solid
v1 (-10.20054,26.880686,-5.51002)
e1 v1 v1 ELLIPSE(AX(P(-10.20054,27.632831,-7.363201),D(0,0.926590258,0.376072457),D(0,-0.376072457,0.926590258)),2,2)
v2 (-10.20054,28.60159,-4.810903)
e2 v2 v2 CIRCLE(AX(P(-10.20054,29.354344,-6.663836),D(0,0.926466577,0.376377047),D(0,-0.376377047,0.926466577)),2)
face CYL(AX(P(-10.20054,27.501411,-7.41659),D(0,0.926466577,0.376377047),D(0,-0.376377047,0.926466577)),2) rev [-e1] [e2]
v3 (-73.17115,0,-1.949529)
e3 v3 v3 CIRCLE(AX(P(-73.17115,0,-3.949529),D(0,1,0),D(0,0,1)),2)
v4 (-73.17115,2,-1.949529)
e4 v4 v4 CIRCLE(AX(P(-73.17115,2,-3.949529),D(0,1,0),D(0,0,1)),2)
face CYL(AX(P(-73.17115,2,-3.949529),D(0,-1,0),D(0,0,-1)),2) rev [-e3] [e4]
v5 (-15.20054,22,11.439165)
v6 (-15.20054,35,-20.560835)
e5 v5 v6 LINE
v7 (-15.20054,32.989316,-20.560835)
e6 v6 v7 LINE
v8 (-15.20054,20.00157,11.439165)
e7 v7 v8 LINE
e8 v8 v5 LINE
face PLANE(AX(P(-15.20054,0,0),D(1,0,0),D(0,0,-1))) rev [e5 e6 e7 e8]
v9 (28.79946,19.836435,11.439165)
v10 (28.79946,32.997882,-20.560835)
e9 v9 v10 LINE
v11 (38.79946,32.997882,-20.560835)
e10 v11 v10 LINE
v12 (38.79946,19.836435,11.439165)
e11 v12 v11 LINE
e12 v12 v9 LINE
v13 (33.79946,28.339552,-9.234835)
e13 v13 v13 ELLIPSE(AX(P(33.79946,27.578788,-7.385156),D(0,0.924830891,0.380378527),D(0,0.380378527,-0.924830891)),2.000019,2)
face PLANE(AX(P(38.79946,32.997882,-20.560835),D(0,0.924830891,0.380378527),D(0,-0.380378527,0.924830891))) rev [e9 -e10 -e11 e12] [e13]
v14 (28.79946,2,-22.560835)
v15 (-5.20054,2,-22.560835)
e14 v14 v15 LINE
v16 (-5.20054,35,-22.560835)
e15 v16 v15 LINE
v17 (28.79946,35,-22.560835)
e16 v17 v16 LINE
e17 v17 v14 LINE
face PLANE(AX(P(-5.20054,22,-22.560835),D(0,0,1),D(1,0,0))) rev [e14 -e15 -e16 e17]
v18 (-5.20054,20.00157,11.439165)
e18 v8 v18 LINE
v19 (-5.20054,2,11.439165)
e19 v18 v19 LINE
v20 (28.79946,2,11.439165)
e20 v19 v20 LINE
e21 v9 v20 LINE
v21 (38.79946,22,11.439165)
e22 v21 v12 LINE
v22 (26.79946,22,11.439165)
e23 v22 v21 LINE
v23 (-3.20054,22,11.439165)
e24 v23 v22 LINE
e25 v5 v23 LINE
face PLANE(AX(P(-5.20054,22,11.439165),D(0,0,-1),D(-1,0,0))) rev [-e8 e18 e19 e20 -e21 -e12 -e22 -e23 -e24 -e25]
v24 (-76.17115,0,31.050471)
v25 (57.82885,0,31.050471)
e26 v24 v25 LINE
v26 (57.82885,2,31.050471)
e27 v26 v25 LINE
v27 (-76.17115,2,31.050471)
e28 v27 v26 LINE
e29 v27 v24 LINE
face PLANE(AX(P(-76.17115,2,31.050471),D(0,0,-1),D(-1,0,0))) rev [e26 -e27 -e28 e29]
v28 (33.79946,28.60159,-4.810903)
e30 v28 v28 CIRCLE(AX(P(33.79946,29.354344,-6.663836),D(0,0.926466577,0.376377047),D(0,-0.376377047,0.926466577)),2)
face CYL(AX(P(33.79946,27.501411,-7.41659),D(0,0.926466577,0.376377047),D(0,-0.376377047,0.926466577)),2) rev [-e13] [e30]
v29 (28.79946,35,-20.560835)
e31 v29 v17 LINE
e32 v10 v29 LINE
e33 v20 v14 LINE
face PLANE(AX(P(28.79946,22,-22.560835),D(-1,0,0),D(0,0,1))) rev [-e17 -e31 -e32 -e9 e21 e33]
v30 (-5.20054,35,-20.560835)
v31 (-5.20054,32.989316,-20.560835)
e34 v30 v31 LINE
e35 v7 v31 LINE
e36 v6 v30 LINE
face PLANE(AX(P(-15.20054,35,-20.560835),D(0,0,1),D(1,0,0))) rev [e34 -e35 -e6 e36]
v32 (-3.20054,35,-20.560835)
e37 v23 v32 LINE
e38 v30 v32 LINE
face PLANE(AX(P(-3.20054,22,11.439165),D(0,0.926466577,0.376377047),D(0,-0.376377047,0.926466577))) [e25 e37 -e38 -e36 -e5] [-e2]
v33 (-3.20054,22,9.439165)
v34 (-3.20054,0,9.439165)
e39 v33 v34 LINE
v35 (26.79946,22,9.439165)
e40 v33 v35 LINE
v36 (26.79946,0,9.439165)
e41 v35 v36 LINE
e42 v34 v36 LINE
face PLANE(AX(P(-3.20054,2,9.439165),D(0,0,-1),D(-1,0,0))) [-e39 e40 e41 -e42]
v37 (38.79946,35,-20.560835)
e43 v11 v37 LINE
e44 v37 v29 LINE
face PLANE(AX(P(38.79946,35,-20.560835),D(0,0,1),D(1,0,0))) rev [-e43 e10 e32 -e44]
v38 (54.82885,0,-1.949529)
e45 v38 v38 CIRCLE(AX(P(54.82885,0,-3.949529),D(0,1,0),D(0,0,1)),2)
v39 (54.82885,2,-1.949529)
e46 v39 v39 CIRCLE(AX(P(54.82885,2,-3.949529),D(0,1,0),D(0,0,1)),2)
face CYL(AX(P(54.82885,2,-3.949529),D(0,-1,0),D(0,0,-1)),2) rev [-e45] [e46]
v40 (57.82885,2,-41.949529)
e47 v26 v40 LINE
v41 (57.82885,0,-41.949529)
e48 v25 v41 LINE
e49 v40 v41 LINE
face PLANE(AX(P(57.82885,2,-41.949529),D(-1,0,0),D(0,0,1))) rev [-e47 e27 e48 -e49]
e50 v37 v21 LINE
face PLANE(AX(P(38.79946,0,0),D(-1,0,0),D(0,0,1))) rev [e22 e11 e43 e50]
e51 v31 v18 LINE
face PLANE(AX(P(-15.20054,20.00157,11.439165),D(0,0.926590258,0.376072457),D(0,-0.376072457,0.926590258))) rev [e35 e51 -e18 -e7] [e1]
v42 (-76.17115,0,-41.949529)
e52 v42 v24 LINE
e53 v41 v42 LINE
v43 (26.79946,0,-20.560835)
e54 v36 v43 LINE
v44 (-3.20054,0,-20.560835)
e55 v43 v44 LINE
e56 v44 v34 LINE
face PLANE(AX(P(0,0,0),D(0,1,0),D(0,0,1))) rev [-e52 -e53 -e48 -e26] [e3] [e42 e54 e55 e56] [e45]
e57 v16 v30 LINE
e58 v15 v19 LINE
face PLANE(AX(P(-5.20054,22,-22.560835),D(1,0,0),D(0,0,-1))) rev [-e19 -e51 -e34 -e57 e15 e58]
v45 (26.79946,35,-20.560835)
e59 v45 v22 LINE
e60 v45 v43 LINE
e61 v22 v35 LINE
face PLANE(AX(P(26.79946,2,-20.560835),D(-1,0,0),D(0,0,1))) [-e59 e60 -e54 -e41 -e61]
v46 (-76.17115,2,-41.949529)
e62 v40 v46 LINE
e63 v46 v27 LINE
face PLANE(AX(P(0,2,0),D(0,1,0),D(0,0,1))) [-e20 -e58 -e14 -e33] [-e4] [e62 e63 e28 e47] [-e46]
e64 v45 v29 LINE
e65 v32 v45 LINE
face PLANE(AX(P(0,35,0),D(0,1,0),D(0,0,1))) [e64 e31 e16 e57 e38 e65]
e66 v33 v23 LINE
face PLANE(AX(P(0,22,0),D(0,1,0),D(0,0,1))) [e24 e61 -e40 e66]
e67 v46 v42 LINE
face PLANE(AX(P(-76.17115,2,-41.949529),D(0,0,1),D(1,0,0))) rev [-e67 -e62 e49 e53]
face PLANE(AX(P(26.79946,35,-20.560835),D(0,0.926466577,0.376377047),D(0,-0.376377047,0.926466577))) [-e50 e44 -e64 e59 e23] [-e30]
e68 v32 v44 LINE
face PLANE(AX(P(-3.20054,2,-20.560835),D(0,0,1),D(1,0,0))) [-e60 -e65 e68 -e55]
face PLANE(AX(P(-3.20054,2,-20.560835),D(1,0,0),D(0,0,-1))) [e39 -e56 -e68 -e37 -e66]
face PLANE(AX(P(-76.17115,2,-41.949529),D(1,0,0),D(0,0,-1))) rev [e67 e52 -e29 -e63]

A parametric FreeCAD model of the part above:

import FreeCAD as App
import Part
import Sketcher
from FreeCAD import Vector


def add_polygon(sketch, points):
    """Adds a closed chain of lines whose ends are joined by coincident constraints."""
    first, n = sketch.GeometryCount, len(points)
    for a, b in zip(points, points[1:] + points[:1]):
        sketch.addGeometry(Part.LineSegment(App.Vector(*a, 0), App.Vector(*b, 0)), False)
    for i in range(n):
        sketch.addConstraint(Sketcher.Constraint("Coincident", first + i, 2, first + (i + 1) % n, 1))

doc = App.newDocument("Part")
body = doc.addObject("PartDesign::Body", "Body")

sketch1 = doc.addObject("Sketcher::SketchObject", "Sketch")
body.addObject(sketch1)
sketch1.AttachmentSupport = (doc.XZ_Plane, [""])
sketch1.MapMode = "FlatFace"
add_polygon(sketch1, [(-76.2, -41.9), (-76.2, 31.1), (57.8, 31.1), (57.8, -41.9)])
sketch1.addGeometry(Part.Circle(Vector(-73.2, -3.9, 0), Vector(0, 0, 1), 2), False)
sketch1.addGeometry(Part.Circle(Vector(54.8, -3.9, 0), Vector(0, 0, 1), 2), False)
add_polygon(sketch1, [(26.8, 9.4), (-3.2, 9.4), (-3.2, -20.6), (26.8, -20.6)])
sketch1.addConstraint(Sketcher.Constraint("Vertical", 0))
sketch1.addConstraint(Sketcher.Constraint("Horizontal", 1))
sketch1.addConstraint(Sketcher.Constraint("Vertical", 2))
sketch1.addConstraint(Sketcher.Constraint("Horizontal", 3))
sketch1.addConstraint(Sketcher.Constraint("Horizontal", 6))
sketch1.addConstraint(Sketcher.Constraint("Vertical", 7))
sketch1.addConstraint(Sketcher.Constraint("Horizontal", 8))
sketch1.addConstraint(Sketcher.Constraint("Vertical", 9))
sketch1.addConstraint(Sketcher.Constraint("Equal", 4, 5))
sketch1.addConstraint(Sketcher.Constraint("Horizontal", 4, 3, 5, 3))
sketch1.addConstraint(Sketcher.Constraint("Equal", 8, 7))
sketch1.addConstraint(Sketcher.Constraint("Diameter", 4, 4.0))
sketch1.addConstraint(Sketcher.Constraint("DistanceX", 1, 1, 1, 2, 134.0))
sketch1.addConstraint(Sketcher.Constraint("DistanceX", 6, 2, 6, 1, 30.0))
sketch1.addConstraint(Sketcher.Constraint("DistanceY", 0, 1, 0, 2, 73.0))
sketch1.addConstraint(Sketcher.Constraint("DistanceX", 4, 3, 5, 3, 128.0))
sketch1.addConstraint(Sketcher.Constraint("DistanceX", 0, 2, 4, 3, 3.0))
sketch1.addConstraint(Sketcher.Constraint("DistanceY", 4, 3, 0, 2, 35.0))
sketch1.addConstraint(Sketcher.Constraint("DistanceX", 4, 3, -1, 1, 73.17115))
sketch1.addConstraint(Sketcher.Constraint("DistanceY", 4, 3, -1, 1, 3.949529))
sketch1.addConstraint(Sketcher.Constraint("DistanceX", 6, 2, -1, 1, 3.20054))
sketch1.addConstraint(Sketcher.Constraint("DistanceY", -1, 1, 6, 2, 9.439165))
pad1 = doc.addObject("PartDesign::Pad", "Pad")
body.addObject(pad1)
pad1.Profile = sketch1
pad1.Length = 2
pad1.Reversed = True

sketch2 = doc.addObject("Sketcher::SketchObject", "Sketch001")
body.addObject(sketch2)
sketch2.AttachmentSupport = (doc.XZ_Plane, [""])
sketch2.MapMode = "FlatFace"
sketch2.AttachmentOffset = App.Placement(Vector(0, 0, -2), App.Rotation())
add_polygon(sketch2, [(-5, -23), (-5, 11), (29, 11), (29, -23)])
add_polygon(sketch2, [(27, 9), (-3, 9), (-3, -21), (27, -21)])
sketch2.addConstraint(Sketcher.Constraint("Vertical", 0))
sketch2.addConstraint(Sketcher.Constraint("Horizontal", 1))
sketch2.addConstraint(Sketcher.Constraint("Vertical", 2))
sketch2.addConstraint(Sketcher.Constraint("Horizontal", 3))
sketch2.addConstraint(Sketcher.Constraint("Horizontal", 4))
sketch2.addConstraint(Sketcher.Constraint("Vertical", 5))
sketch2.addConstraint(Sketcher.Constraint("Horizontal", 6))
sketch2.addConstraint(Sketcher.Constraint("Vertical", 7))
sketch2.addConstraint(Sketcher.Constraint("Equal", 3, 0))
sketch2.addConstraint(Sketcher.Constraint("Equal", 6, 5))
sketch2.addConstraint(Sketcher.Constraint("DistanceX", 1, 1, 1, 2, 34.0))
sketch2.addConstraint(Sketcher.Constraint("DistanceX", 4, 2, 4, 1, 30.0))
sketch2.addConstraint(Sketcher.Constraint("DistanceX", 0, 2, 4, 2, 2.0))
sketch2.addConstraint(Sketcher.Constraint("DistanceY", 4, 2, 0, 2, 2.0))
sketch2.addConstraint(Sketcher.Constraint("DistanceX", 0, 2, -1, 1, 5.20054))
sketch2.addConstraint(Sketcher.Constraint("DistanceY", -1, 1, 0, 2, 11.439165))
pad2 = doc.addObject("PartDesign::Pad", "Pad001")
body.addObject(pad2)
pad2.Profile = sketch2
pad2.Length = 20
pad2.Reversed = True

sketch3 = doc.addObject("Sketcher::SketchObject", "Sketch002")
body.addObject(sketch3)
sketch3.AttachmentSupport = (doc.XZ_Plane, [""])
sketch3.MapMode = "FlatFace"
sketch3.AttachmentOffset = App.Placement(Vector(0, 0, -22), App.Rotation())
add_polygon(sketch3, [(-5.2, -22.6), (-5.2, -20.6), (28.8, -20.6), (28.8, -22.6)])
sketch3.addConstraint(Sketcher.Constraint("Vertical", 0))
sketch3.addConstraint(Sketcher.Constraint("Horizontal", 1))
sketch3.addConstraint(Sketcher.Constraint("Vertical", 2))
sketch3.addConstraint(Sketcher.Constraint("Horizontal", 3))
sketch3.addConstraint(Sketcher.Constraint("DistanceX", 1, 1, 1, 2, 34.0))
sketch3.addConstraint(Sketcher.Constraint("DistanceY", 0, 1, 0, 2, 2.0))
sketch3.addConstraint(Sketcher.Constraint("DistanceX", 0, 2, -1, 1, 5.20054))
sketch3.addConstraint(Sketcher.Constraint("DistanceY", 0, 2, -1, 1, 20.560835))
pad3 = doc.addObject("PartDesign::Pad", "Pad002")
body.addObject(pad3)
pad3.Profile = sketch3
pad3.Length = 13
pad3.Reversed = True

sketch4 = doc.addObject("Sketcher::SketchObject", "Sketch003")
body.addObject(sketch4)
sketch4.AttachmentSupport = (doc.YZ_Plane, [""])
sketch4.MapMode = "FlatFace"
sketch4.AttachmentOffset = App.Placement(Vector(0, 0, 28.79946), App.Rotation())
add_polygon(sketch4, [(22, 11), (22, -21), (35, -21)])
sketch4.addConstraint(Sketcher.Constraint("Vertical", 0))
sketch4.addConstraint(Sketcher.Constraint("Horizontal", 1))
sketch4.addConstraint(Sketcher.Constraint("DistanceX", 1, 1, 1, 2, 13.0))
sketch4.addConstraint(Sketcher.Constraint("DistanceY", 0, 2, 0, 1, 32.0))
sketch4.addConstraint(Sketcher.Constraint("DistanceX", -1, 1, 0, 2, 22.0))
sketch4.addConstraint(Sketcher.Constraint("DistanceY", 0, 2, -1, 1, 20.560835))
pad4 = doc.addObject("PartDesign::Pad", "Pad003")
body.addObject(pad4)
pad4.Profile = sketch4
pad4.Length = 2
pad4.Reversed = True

sketch5 = doc.addObject("Sketcher::SketchObject", "Sketch004")
body.addObject(sketch5)
sketch5.AttachmentSupport = (doc.YZ_Plane, [""])
sketch5.MapMode = "FlatFace"
sketch5.AttachmentOffset = App.Placement(Vector(0, 0, -5.20054), App.Rotation())
add_polygon(sketch5, [(35, -21), (22, -21), (22, 11)])
sketch5.addConstraint(Sketcher.Constraint("Horizontal", 0))
sketch5.addConstraint(Sketcher.Constraint("Vertical", 1))
sketch5.addConstraint(Sketcher.Constraint("DistanceX", 0, 2, 0, 1, 13.0))
sketch5.addConstraint(Sketcher.Constraint("DistanceY", 1, 1, 1, 2, 32.0))
sketch5.addConstraint(Sketcher.Constraint("DistanceX", -1, 1, 0, 2, 22.0))
sketch5.addConstraint(Sketcher.Constraint("DistanceY", 0, 2, -1, 1, 20.560835))
pad5 = doc.addObject("PartDesign::Pad", "Pad004")
body.addObject(pad5)
pad5.Profile = sketch5
pad5.Length = 2

sketch6 = doc.addObject("Sketcher::SketchObject", "Sketch005")
body.addObject(sketch6)
sketch6.AttachmentSupport = (doc.YZ_Plane, [""])
sketch6.MapMode = "FlatFace"
sketch6.AttachmentOffset = App.Placement(Vector(0, 0, -5.20054), App.Rotation())
add_polygon(sketch6, [(20, 11.4), (22, 11.4), (35, -20.6), (33, -20.6)])
sketch6.addConstraint(Sketcher.Constraint("Horizontal", 0))
sketch6.addConstraint(Sketcher.Constraint("Horizontal", 2))
sketch6.addConstraint(Sketcher.Constraint("DistanceX", -1, 1, 0, 2, 22.0))
sketch6.addConstraint(Sketcher.Constraint("DistanceX", -1, 1, 1, 2, 35.0))
sketch6.addConstraint(Sketcher.Constraint("DistanceY", 1, 2, 0, 2, 32.0))
sketch6.addConstraint(Sketcher.Constraint("DistanceX", 0, 1, 0, 2, 1.99843))
sketch6.addConstraint(Sketcher.Constraint("Distance", 3, 34.535222))
sketch6.addConstraint(Sketcher.Constraint("DistanceY", -1, 1, 0, 2, 11.439165))
pad6 = doc.addObject("PartDesign::Pad", "Pad005")
body.addObject(pad6)
pad6.Profile = sketch6
pad6.Length = 10
pad6.Reversed = True

sketch7 = doc.addObject("Sketcher::SketchObject", "Sketch006")
body.addObject(sketch7)
sketch7.AttachmentSupport = (doc.YZ_Plane, [""])
sketch7.MapMode = "FlatFace"
sketch7.AttachmentOffset = App.Placement(Vector(0, 0, 28.79946), App.Rotation())
add_polygon(sketch7, [(35, -20.6), (22, 11.4), (19.8, 11.4), (33, -20.6)])
sketch7.addConstraint(Sketcher.Constraint("Horizontal", 1))
sketch7.addConstraint(Sketcher.Constraint("Horizontal", 3))
sketch7.addConstraint(Sketcher.Constraint("DistanceX", -1, 1, 0, 2, 22.0))
sketch7.addConstraint(Sketcher.Constraint("DistanceX", -1, 1, 3, 2, 35.0))
sketch7.addConstraint(Sketcher.Constraint("DistanceY", 2, 2, 0, 2, 32.0))
sketch7.addConstraint(Sketcher.Constraint("Distance", 2, 34.60092))
sketch7.addConstraint(Sketcher.Constraint("DistanceX", 1, 2, 1, 1, 2.163565))
sketch7.addConstraint(Sketcher.Constraint("DistanceY", -1, 1, 0, 2, 11.439165))
pad7 = doc.addObject("PartDesign::Pad", "Pad006")
body.addObject(pad7)
pad7.Profile = sketch7
pad7.Length = 10

sketch8 = doc.addObject("Sketcher::SketchObject", "Sketch007")
body.addObject(sketch8)
sketch8.Placement = App.Placement(Vector(0, 22.872333, 9.291885), App.Rotation(Vector(1, 0, 0), Vector(0, 0.376377047, -0.926466577), Vector(0, 0.926466577, 0.376377047), "ZXY"))
sketch8.addGeometry(Part.Circle(Vector(-10.2, 17.2, 0), Vector(0, 0, 1), 2), False)
sketch8.addGeometry(Part.Circle(Vector(33.8, 17.2, 0), Vector(0, 0, 1), 2), False)
sketch8.addConstraint(Sketcher.Constraint("Equal", 0, 1))
sketch8.addConstraint(Sketcher.Constraint("Horizontal", 0, 3, 1, 3))
sketch8.addConstraint(Sketcher.Constraint("Diameter", 0, 4.0))
sketch8.addConstraint(Sketcher.Constraint("DistanceX", 0, 3, 1, 3, 44.0))
sketch8.addConstraint(Sketcher.Constraint("DistanceX", 0, 3, -1, 1, 10.20054))
sketch8.addConstraint(Sketcher.Constraint("DistanceY", -1, 1, 0, 3, 17.222123))
pocket1 = doc.addObject("PartDesign::Pocket", "Pocket")
body.addObject(pocket1)
pocket1.Profile = sketch8
pocket1.Length = 2

doc.recompute()
